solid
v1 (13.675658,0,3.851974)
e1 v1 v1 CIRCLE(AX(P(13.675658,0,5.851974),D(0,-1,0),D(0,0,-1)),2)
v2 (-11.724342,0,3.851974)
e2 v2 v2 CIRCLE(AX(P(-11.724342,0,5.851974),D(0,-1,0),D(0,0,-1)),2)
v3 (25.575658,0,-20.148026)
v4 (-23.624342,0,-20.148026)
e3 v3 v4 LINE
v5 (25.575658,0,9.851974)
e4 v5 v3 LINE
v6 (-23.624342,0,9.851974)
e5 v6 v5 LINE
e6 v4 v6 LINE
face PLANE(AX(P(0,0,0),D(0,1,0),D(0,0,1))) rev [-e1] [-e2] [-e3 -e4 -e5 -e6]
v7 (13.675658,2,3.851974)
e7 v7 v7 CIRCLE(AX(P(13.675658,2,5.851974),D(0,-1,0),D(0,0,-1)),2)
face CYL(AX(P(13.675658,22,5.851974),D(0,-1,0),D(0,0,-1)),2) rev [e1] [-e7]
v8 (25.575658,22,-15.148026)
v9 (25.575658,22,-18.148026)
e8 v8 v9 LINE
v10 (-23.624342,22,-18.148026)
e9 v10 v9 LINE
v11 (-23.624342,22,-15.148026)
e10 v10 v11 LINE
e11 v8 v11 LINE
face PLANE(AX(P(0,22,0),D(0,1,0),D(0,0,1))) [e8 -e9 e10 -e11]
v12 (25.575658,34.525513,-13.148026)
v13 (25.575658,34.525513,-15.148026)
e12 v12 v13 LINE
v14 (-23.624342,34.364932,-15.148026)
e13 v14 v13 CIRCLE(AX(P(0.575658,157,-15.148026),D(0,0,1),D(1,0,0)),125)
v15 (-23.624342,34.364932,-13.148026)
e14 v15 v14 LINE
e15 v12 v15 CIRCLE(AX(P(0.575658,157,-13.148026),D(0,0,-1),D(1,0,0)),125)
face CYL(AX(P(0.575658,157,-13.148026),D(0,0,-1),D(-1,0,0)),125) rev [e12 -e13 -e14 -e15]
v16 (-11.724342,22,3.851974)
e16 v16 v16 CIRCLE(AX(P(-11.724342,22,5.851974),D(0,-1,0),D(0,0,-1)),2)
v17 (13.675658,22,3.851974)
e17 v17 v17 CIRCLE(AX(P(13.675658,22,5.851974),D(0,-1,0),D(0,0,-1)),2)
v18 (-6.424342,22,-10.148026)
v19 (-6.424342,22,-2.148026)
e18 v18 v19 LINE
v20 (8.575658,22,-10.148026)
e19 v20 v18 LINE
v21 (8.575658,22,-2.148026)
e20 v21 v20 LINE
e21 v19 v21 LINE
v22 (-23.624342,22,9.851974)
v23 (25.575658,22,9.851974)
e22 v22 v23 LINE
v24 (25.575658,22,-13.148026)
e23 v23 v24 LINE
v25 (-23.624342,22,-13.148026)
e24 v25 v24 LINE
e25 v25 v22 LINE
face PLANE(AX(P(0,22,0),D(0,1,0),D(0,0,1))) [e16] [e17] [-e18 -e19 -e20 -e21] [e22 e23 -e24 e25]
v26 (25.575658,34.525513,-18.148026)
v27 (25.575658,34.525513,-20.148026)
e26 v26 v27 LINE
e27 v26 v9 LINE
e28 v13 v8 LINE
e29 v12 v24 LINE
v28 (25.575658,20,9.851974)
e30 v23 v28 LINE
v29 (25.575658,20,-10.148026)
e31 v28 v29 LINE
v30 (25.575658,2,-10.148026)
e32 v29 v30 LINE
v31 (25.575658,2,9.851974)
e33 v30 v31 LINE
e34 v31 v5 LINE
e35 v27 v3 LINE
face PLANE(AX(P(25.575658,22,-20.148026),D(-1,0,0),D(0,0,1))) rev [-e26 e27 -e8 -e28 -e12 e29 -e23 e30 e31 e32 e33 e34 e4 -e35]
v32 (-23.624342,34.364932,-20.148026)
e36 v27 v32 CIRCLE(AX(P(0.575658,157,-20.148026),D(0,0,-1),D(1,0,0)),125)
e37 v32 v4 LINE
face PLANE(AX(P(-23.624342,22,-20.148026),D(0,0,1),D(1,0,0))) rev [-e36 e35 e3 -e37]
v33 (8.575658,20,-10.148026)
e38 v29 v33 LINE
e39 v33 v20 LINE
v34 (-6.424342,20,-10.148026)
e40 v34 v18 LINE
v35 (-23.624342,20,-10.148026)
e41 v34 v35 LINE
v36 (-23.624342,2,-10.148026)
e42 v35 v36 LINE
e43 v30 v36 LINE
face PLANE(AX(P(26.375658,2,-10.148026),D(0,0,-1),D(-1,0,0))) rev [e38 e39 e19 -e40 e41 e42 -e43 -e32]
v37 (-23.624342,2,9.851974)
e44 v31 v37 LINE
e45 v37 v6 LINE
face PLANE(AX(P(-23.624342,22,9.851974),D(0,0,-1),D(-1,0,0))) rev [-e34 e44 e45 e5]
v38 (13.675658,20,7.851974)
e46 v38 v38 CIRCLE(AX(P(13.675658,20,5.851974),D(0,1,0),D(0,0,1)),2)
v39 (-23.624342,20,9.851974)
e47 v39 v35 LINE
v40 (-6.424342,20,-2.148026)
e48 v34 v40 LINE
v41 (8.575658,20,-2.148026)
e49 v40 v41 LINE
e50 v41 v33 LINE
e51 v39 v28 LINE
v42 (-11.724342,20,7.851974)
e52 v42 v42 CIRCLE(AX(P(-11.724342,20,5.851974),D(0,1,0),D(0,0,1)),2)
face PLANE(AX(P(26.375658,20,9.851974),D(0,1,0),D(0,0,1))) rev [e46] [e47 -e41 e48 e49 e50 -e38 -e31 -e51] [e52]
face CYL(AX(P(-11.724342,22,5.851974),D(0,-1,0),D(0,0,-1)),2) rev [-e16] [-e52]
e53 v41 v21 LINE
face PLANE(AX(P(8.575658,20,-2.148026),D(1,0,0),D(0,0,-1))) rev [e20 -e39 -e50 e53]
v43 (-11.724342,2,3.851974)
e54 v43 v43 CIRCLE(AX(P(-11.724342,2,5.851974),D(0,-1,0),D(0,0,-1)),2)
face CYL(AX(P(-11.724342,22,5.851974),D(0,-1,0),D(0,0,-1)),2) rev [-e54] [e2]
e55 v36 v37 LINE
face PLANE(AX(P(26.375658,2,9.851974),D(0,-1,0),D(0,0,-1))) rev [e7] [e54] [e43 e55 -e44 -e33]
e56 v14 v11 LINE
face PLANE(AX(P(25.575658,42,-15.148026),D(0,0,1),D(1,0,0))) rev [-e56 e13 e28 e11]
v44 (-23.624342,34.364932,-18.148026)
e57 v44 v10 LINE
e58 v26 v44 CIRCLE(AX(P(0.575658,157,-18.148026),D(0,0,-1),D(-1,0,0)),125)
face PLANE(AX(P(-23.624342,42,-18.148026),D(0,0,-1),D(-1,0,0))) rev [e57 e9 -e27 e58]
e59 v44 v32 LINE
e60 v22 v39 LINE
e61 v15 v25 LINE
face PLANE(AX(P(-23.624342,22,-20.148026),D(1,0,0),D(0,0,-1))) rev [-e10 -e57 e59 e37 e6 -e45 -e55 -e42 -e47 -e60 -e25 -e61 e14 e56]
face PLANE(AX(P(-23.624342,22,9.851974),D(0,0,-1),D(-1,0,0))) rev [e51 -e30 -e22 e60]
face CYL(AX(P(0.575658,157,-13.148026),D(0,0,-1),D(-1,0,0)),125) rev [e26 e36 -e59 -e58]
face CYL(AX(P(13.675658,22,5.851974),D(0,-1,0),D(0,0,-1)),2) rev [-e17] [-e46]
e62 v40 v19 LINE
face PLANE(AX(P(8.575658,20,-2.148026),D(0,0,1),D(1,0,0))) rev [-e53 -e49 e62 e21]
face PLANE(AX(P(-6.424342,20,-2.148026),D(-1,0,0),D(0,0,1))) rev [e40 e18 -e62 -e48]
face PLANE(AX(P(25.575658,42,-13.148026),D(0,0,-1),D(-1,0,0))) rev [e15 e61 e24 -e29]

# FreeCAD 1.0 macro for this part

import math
import FreeCAD as App
import Part
import Sketcher
from FreeCAD import Vector

doc = App.newDocument("Part")
body = doc.addObject("PartDesign::Body", "Body")

# Sketch on XZ plane
sketch1 = doc.addObject("Sketcher::SketchObject", "Sketch")
body.addObject(sketch1)
sketch1.AttachmentSupport = (doc.XZ_Plane, [""])
sketch1.MapMode = "FlatFace"
sketch1.addGeometry([
    Part.LineSegment(Vector(-24, -20, 0), Vector(-24, 10, 0)),
    Part.LineSegment(Vector(-24, 10, 0), Vector(26, 10, 0)),
    Part.LineSegment(Vector(26, 10, 0), Vector(26, -20, 0)),
    Part.LineSegment(Vector(26, -20, 0), Vector(-24, -20, 0)),
], False)
sketch1.addConstraint([
    Sketcher.Constraint("Coincident", 0, 2, 1, 1),
    Sketcher.Constraint("Coincident", 1, 2, 2, 1),
    Sketcher.Constraint("Coincident", 2, 2, 3, 1),
    Sketcher.Constraint("Coincident", 3, 2, 0, 1),
    Sketcher.Constraint("Vertical", 0),
    Sketcher.Constraint("Horizontal", 1),
    Sketcher.Constraint("Vertical", 2),
    Sketcher.Constraint("Horizontal", 3),
    Sketcher.Constraint("DistanceY", 0, 1, 0, 2, 30.0),
    Sketcher.Constraint("DistanceX", 1, 1, 1, 2, 49.2),
    Sketcher.Constraint("DistanceX", 0, 2, -1, 1, 23.624342),
    Sketcher.Constraint("DistanceY", -1, 1, 0, 2, 9.851974),
])
pad1 = doc.addObject("PartDesign::Pad", "Pad")
body.addObject(pad1)
pad1.Profile = sketch1
pad1.Length = 22
pad1.Reversed = True

# Sketch on XZ plane
sketch2 = doc.addObject("Sketcher::SketchObject", "Sketch001")
body.addObject(sketch2)
sketch2.AttachmentSupport = (doc.XZ_Plane, [""])
sketch2.MapMode = "FlatFace"
sketch2.AttachmentOffset = App.Placement(Vector(0, 0, -22), App.Rotation())
sketch2.addGeometry([
    Part.LineSegment(Vector(-23.6, -20.1, 0), Vector(-23.6, -18.1, 0)),  # 0
    Part.LineSegment(Vector(-23.6, -18.1, 0), Vector(25.6, -18.1, 0)),  # 1
    Part.LineSegment(Vector(25.6, -18.1, 0), Vector(25.6, -20.1, 0)),  # 2
    Part.LineSegment(Vector(25.6, -20.1, 0), Vector(-23.6, -20.1, 0)),  # 3
    Part.LineSegment(Vector(-23.6, -15.1, 0), Vector(-23.6, -13.1, 0)),  # 4
    Part.LineSegment(Vector(-23.6, -13.1, 0), Vector(25.6, -13.1, 0)),  # 5
    Part.LineSegment(Vector(25.6, -13.1, 0), Vector(25.6, -15.1, 0)),  # 6
    Part.LineSegment(Vector(25.6, -15.1, 0), Vector(-23.6, -15.1, 0)),  # 7
], False)
sketch2.addConstraint([
    Sketcher.Constraint("Coincident", 0, 2, 1, 1),
    Sketcher.Constraint("Coincident", 1, 2, 2, 1),
    Sketcher.Constraint("Coincident", 2, 2, 3, 1),
    Sketcher.Constraint("Coincident", 3, 2, 0, 1),
    Sketcher.Constraint("Coincident", 4, 2, 5, 1),
    Sketcher.Constraint("Coincident", 5, 2, 6, 1),
    Sketcher.Constraint("Coincident", 6, 2, 7, 1),
    Sketcher.Constraint("Coincident", 7, 2, 4, 1),
    Sketcher.Constraint("Vertical", 0),
    Sketcher.Constraint("Horizontal", 1),
    Sketcher.Constraint("Vertical", 2),
    Sketcher.Constraint("Horizontal", 3),
    Sketcher.Constraint("Vertical", 4),
    Sketcher.Constraint("Horizontal", 5),
    Sketcher.Constraint("Vertical", 6),
    Sketcher.Constraint("Horizontal", 7),
    Sketcher.Constraint("Vertical", 3, 2, 4, 2),
    Sketcher.Constraint("Vertical", 2, 2, 5, 2),
    Sketcher.Constraint("Equal", 2, 4),
    Sketcher.Constraint("DistanceY", 0, 1, 0, 2, 2.0),
    Sketcher.Constraint("DistanceX", 1, 1, 1, 2, 49.2),
    Sketcher.Constraint("DistanceY", 0, 2, 4, 2, 5.0),
    Sketcher.Constraint("DistanceX", 0, 2, -1, 1, 23.624342),
    Sketcher.Constraint("DistanceY", 0, 2, -1, 1, 18.148026),
])
pad2 = doc.addObject("PartDesign::Pad", "Pad001")
body.addObject(pad2)
pad2.Profile = sketch2
pad2.Length = 20
pad2.Reversed = True

# Sketch on XY plane
sketch3 = doc.addObject("Sketcher::SketchObject", "Sketch002")
body.addObject(sketch3)
sketch3.AttachmentSupport = (doc.XY_Plane, [""])
sketch3.MapMode = "FlatFace"
sketch3.AttachmentOffset = App.Placement(Vector(0, 0, -20.148026), App.Rotation())
sketch3.addGeometry([
    Part.LineSegment(Vector(-24, 42, 0), Vector(26, 42, 0)),
    Part.LineSegment(Vector(26, 42, 0), Vector(26, 35, 0)),
    Part.ArcOfCircle(Part.Circle(Vector(1, 157, 0), Vector(0, 0, 1), 125), math.radians(-101), math.radians(-78)),
    Part.LineSegment(Vector(-24, 34, 0), Vector(-24, 42, 0)),
], False)
sketch3.addConstraint([
    Sketcher.Constraint("Coincident", 0, 2, 1, 1),
    Sketcher.Constraint("Coincident", 1, 2, 2, 2),
    Sketcher.Constraint("Coincident", 2, 1, 3, 1),
    Sketcher.Constraint("Coincident", 3, 2, 0, 1),
    Sketcher.Constraint("Horizontal", 0),
    Sketcher.Constraint("Vertical", 1),
    Sketcher.Constraint("Vertical", 3),
    Sketcher.Constraint("Radius", 2, 125.0),
    Sketcher.Constraint("DistanceX", 0, 1, 0, 2, 49.2),
    Sketcher.Constraint("DistanceY", -1, 1, 2, 3, 157.0),
    Sketcher.Constraint("DistanceY", -1, 1, 0, 2, 42.0),
    Sketcher.Constraint("DistanceX", 2, 3, 0, 2, 25.0),
    Sketcher.Constraint("DistanceX", -1, 1, 2, 3, 0.575658),
])
pocket1 = doc.addObject("PartDesign::Pocket", "Pocket")
body.addObject(pocket1)
pocket1.Profile = sketch3
pocket1.Length = 7
pocket1.Reversed = True

# Sketch on YZ plane
sketch4 = doc.addObject("Sketcher::SketchObject", "Sketch003")
body.addObject(sketch4)
sketch4.AttachmentSupport = (doc.YZ_Plane, [""])
sketch4.MapMode = "FlatFace"
sketch4.AttachmentOffset = App.Placement(Vector(0, 0, -23.624342), App.Rotation())
sketch4.addGeometry([
    Part.LineSegment(Vector(20, -10, 0), Vector(2, -10, 0)),
    Part.LineSegment(Vector(2, -10, 0), Vector(2, 10, 0)),
    Part.LineSegment(Vector(2, 10, 0), Vector(20, 10, 0)),
    Part.LineSegment(Vector(20, 10, 0), Vector(20, -10, 0)),
], False)
sketch4.addConstraint([
    Sketcher.Constraint("Coincident", 0, 2, 1, 1),
    Sketcher.Constraint("Coincident", 1, 2, 2, 1),
    Sketcher.Constraint("Coincident", 2, 2, 3, 1),
    Sketcher.Constraint("Coincident", 3, 2, 0, 1),
    Sketcher.Constraint("Horizontal", 0),
    Sketcher.Constraint("Vertical", 1),
    Sketcher.Constraint("Horizontal", 2),
    Sketcher.Constraint("Vertical", 3),
    Sketcher.Constraint("DistanceX", 0, 2, 0, 1, 18.0),
    Sketcher.Constraint("DistanceY", 1, 1, 1, 2, 20.0),
    Sketcher.Constraint("DistanceX", -1, 1, 0, 2, 2.0),
    Sketcher.Constraint("DistanceY", 0, 2, -1, 1, 10.148026),
])
pocket2 = doc.addObject("PartDesign::Pocket", "Pocket001")
body.addObject(pocket2)
pocket2.Profile = sketch4
pocket2.Length = 50
pocket2.Reversed = True

# Sketch on XZ plane
sketch5 = doc.addObject("Sketcher::SketchObject", "Sketch004")
body.addObject(sketch5)
sketch5.AttachmentSupport = (doc.XZ_Plane, [""])
sketch5.MapMode = "FlatFace"
sketch5.addGeometry([
    Part.Circle(Vector(13.7, 5.9, 0), Vector(0, 0, 1), 2),
    Part.Circle(Vector(-11.7, 5.9, 0), Vector(0, 0, 1), 2),
], False)
sketch5.addConstraint([
    Sketcher.Constraint("Equal", 0, 1),
    Sketcher.Constraint("Horizontal", 0, 3, 1, 3),
    Sketcher.Constraint("Diameter", 0, 4.0),
    Sketcher.Constraint("DistanceX", 1, 3, 0, 3, 25.4),
    Sketcher.Constraint("DistanceX", -1, 1, 0, 3, 13.675658),
    Sketcher.Constraint("DistanceY", -1, 1, 0, 3, 5.851974),
])
pocket3 = doc.addObject("PartDesign::Pocket", "Pocket002")
body.addObject(pocket3)
pocket3.Profile = sketch5
pocket3.Length = 22

# Sketch on XZ plane
sketch6 = doc.addObject("Sketcher::SketchObject", "Sketch005")
body.addObject(sketch6)
sketch6.AttachmentSupport = (doc.XZ_Plane, [""])
sketch6.MapMode = "FlatFace"
sketch6.AttachmentOffset = App.Placement(Vector(0, 0, -22), App.Rotation())
sketch6.addGeometry([
    Part.LineSegment(Vector(-6, -10, 0), Vector(-6, -2, 0)),
    Part.LineSegment(Vector(-6, -2, 0), Vector(9, -2, 0)),
    Part.LineSegment(Vector(9, -2, 0), Vector(9, -10, 0)),
    Part.LineSegment(Vector(9, -10, 0), Vector(-6, -10, 0)),
], False)
sketch6.addConstraint([
    Sketcher.Constraint("Coincident", 0, 2, 1, 1),
    Sketcher.Constraint("Coincident", 1, 2, 2, 1),
    Sketcher.Constraint("Coincident", 2, 2, 3, 1),
    Sketcher.Constraint("Coincident", 3, 2, 0, 1),
    Sketcher.Constraint("Vertical", 0),
    Sketcher.Constraint("Horizontal", 1),
    Sketcher.Constraint("Vertical", 2),
    Sketcher.Constraint("Horizontal", 3),
    Sketcher.Constraint("DistanceX", 1, 1, 1, 2, 15.0),
    Sketcher.Constraint("DistanceY", 0, 1, 0, 2, 8.0),
    Sketcher.Constraint("DistanceX", 0, 2, -1, 1, 6.424342),
    Sketcher.Constraint("DistanceY", 0, 2, -1, 1, 2.148026),
])
pocket4 = doc.addObject("PartDesign::Pocket", "Pocket003")
body.addObject(pocket4)
pocket4.Profile = sketch6
pocket4.Length = 2
pocket4.Reversed = True

doc.recompute()
